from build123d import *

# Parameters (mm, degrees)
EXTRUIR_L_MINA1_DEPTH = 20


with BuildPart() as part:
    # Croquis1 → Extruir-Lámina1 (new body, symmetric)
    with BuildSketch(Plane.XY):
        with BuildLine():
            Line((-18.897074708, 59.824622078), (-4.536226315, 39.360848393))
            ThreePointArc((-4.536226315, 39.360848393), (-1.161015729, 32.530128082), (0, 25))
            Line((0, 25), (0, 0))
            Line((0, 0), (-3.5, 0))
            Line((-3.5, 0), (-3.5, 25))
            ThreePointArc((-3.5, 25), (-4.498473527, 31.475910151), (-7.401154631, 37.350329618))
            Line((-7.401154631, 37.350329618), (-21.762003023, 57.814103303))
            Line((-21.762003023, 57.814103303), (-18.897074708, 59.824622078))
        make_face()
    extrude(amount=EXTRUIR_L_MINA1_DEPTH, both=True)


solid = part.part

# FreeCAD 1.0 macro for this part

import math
import FreeCAD as App
import Part
import Sketcher
Q = App.Units.Quantity

doc = App.newDocument("Part")
body = doc.addObject("PartDesign::Body", "Body")

# Sketch on XY plane
sketch1 = body.newObject("Sketcher::SketchObject", "Sketch")
sketch1.AttachmentSupport = (doc.getObject("XY_Plane"), [""])
sketch1.MapMode = "FlatFace"
sketch1.addGeometry([
    Part.LineSegment(App.Vector(-4.536226, 39.360848, 0), App.Vector(-18.897075, 59.824622, 0)),  # 0
    Part.LineSegment(App.Vector(-18.897075, 59.824622, 0), App.Vector(-21.762003, 57.814103, 0)),  # 1
    Part.LineSegment(App.Vector(-21.762003, 57.814103, 0), App.Vector(-7.401155, 37.35033, 0)),  # 2
    Part.ArcOfCircle(Part.Circle(App.Vector(-25, 25, 0), App.Vector(0, 0, 1), 21.5), math.radians(0), math.radians(35.06)),  # 3
    Part.LineSegment(App.Vector(-3.5, 25, 0), App.Vector(-3.5, 0, 0)),  # 4
    Part.LineSegment(App.Vector(-3.5, 0, 0), App.Vector(0, 0, 0)),  # 5
    Part.LineSegment(App.Vector(0, 0, 0), App.Vector(0, 25, 0)),  # 6
    Part.ArcOfCircle(Part.Circle(App.Vector(-25, 25, 0), App.Vector(0, 0, 1), 25), math.radians(0), math.radians(35.06)),  # 7
], False)
sketch1.addConstraint([
    Sketcher.Constraint("Coincident", 0, 2, 1, 1),
    Sketcher.Constraint("Coincident", 1, 2, 2, 1),
    Sketcher.Constraint("Tangent", 2, 2, 3, 2),
    Sketcher.Constraint("Tangent", 3, 1, 4, 1),
    Sketcher.Constraint("Coincident", 4, 2, 5, 1),
    Sketcher.Constraint("Coincident", 5, 2, 6, 1),
    Sketcher.Constraint("Tangent", 6, 2, 7, 1),
    Sketcher.Constraint("Tangent", 7, 2, 0, 1),
    Sketcher.Constraint("Vertical", 4),
    Sketcher.Constraint("Horizontal", 5),
    Sketcher.Constraint("Vertical", 6),
    Sketcher.Constraint("Coincident", 5, 2, -1, 1),
    Sketcher.Constraint("Coincident", 7, 3, 3, 3),
    Sketcher.Constraint("Perpendicular", 0, 1),
    Sketcher.Constraint("Perpendicular", 1, 2),
    Sketcher.Constraint("Radius", 7, Q("25 mm")),
    Sketcher.Constraint("Radius", 3, Q("21.5 mm")),
    Sketcher.Constraint("DistanceY", 4, 2, 4, 1, Q("25 mm")),
    Sketcher.Constraint("Distance", 0, Q("25 mm")),
    Sketcher.Constraint("Angle", 0, Q("125.06 deg")),
])
pad1 = body.newObject("PartDesign::Pad", "Pad")
pad1.Profile = sketch1
pad1.Length = 40
pad1.Midplane = True

doc.recompute()
